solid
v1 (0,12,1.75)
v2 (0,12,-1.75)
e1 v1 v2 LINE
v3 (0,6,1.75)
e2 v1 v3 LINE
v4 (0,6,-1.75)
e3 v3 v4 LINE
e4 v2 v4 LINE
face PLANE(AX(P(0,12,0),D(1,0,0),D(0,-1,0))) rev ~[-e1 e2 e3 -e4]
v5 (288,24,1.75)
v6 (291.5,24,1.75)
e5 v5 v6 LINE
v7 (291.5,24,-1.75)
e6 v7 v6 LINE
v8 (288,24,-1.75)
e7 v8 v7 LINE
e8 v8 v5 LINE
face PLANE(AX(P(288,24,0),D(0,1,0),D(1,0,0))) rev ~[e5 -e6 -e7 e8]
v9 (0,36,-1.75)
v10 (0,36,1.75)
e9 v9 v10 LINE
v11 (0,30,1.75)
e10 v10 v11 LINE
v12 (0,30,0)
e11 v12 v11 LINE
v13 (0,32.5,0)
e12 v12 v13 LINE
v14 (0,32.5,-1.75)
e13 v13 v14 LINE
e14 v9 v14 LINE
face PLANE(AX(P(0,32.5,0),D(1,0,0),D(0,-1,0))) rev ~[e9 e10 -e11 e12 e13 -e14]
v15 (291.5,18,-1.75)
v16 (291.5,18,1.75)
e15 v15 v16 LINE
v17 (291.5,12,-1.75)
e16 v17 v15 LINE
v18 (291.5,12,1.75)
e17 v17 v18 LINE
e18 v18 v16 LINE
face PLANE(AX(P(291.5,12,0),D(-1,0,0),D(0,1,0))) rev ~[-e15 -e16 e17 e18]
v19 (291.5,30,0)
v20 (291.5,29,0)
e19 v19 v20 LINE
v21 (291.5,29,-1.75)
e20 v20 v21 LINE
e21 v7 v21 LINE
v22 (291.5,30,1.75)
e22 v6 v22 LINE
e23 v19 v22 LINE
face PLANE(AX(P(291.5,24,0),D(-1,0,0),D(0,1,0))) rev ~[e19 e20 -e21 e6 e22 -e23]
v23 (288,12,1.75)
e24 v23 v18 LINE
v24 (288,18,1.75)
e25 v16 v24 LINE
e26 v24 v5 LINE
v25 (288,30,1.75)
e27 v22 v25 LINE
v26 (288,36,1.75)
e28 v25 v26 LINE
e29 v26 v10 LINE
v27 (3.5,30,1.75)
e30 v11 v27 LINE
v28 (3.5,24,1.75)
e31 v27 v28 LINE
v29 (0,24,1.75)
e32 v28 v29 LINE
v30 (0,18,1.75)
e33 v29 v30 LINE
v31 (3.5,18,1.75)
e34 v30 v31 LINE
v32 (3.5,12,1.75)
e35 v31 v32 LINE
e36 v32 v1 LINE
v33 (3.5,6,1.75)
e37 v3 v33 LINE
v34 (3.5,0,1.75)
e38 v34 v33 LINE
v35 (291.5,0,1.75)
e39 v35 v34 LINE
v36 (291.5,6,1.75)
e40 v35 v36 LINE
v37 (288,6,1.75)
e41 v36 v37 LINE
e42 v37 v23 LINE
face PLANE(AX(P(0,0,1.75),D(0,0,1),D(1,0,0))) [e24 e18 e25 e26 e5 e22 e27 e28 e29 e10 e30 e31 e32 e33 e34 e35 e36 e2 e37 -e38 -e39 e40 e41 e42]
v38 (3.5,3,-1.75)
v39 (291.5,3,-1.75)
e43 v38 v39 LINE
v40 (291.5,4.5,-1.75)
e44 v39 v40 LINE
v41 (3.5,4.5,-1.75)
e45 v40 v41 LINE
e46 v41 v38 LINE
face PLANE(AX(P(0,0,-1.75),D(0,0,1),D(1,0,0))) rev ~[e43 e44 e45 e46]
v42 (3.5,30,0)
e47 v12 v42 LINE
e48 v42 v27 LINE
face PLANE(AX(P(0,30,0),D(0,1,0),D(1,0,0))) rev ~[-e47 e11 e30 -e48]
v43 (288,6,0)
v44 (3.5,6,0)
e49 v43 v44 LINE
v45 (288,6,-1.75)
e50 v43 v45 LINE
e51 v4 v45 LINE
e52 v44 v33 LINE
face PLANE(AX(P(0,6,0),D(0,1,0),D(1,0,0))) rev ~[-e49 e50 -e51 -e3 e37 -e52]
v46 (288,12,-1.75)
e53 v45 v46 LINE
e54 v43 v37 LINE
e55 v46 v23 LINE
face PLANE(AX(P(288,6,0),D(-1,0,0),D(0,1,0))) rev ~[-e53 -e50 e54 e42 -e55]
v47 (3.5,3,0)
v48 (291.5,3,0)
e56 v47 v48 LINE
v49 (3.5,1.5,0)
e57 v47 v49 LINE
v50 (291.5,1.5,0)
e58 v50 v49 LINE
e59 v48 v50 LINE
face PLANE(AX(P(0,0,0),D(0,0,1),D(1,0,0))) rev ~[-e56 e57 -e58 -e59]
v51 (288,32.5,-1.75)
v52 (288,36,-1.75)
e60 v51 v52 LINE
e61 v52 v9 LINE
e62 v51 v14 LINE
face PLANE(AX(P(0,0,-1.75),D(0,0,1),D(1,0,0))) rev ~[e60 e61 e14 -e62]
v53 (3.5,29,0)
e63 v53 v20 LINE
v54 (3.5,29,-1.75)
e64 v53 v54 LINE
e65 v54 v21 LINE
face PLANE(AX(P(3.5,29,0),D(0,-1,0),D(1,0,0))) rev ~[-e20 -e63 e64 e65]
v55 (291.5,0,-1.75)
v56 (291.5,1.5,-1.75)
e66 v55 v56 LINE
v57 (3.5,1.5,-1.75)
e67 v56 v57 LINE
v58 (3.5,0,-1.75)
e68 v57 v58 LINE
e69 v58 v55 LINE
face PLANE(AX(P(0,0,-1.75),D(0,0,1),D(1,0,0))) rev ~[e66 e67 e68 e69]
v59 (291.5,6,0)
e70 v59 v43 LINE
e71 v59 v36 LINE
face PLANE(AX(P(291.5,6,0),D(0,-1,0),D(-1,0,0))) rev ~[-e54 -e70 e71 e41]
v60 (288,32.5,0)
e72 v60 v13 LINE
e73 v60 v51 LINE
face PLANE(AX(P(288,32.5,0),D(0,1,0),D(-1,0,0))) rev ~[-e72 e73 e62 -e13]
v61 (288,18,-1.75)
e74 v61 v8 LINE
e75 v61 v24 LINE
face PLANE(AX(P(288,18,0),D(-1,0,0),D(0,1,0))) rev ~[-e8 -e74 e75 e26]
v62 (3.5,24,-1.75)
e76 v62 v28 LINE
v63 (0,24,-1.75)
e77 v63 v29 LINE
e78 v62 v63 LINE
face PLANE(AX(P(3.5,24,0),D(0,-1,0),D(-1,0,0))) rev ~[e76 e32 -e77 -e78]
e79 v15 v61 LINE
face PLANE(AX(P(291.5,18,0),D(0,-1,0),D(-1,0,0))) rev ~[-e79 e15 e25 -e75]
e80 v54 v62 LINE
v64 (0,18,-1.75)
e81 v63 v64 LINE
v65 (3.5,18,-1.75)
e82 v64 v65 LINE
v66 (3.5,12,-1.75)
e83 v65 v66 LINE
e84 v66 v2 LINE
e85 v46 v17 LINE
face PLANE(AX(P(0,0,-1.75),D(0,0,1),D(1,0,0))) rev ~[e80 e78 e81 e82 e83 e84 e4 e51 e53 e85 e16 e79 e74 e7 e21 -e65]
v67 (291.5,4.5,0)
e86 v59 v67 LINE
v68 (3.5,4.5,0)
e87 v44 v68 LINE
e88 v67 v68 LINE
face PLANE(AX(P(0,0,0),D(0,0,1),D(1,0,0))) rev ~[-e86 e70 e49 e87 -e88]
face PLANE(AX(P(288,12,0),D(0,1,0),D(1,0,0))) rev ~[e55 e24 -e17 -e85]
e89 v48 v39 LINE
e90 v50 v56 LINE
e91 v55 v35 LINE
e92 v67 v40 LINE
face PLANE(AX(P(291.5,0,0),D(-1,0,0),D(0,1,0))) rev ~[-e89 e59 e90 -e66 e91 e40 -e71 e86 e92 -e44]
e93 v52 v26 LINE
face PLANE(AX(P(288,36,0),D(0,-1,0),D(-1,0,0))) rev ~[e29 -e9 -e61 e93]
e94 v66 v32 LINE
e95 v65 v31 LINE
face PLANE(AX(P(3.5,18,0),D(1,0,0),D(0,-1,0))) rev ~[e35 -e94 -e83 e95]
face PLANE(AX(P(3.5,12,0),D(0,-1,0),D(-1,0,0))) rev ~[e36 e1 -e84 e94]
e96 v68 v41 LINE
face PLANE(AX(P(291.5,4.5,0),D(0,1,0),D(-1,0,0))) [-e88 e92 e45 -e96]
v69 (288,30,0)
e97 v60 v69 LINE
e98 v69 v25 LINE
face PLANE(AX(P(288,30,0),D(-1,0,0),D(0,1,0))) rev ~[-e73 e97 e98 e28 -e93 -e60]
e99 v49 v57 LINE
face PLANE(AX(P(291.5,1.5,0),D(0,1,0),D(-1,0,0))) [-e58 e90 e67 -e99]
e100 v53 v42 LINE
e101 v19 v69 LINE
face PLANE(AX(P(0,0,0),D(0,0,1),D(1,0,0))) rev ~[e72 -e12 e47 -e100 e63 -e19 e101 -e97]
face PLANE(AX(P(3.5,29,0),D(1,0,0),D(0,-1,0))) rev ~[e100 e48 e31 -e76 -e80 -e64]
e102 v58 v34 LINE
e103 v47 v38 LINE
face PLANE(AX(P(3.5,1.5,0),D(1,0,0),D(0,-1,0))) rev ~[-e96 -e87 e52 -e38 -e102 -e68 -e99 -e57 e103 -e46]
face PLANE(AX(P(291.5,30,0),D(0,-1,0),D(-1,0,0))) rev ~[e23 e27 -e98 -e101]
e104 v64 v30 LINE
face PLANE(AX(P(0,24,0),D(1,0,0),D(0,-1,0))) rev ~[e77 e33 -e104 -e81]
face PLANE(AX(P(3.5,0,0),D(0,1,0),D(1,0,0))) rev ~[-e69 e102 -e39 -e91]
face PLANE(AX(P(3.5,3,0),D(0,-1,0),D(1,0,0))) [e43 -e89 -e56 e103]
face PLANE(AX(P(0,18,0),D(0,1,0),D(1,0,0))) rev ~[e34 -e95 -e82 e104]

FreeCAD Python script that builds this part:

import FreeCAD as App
import Part
import Sketcher

V = App.Vector
Q = App.Units.Quantity

doc = App.newDocument("Part")
params = doc.addObject("Spreadsheet::Sheet", "Params")
for row, (alias, value) in enumerate([
    ("sketch1_width", "288 mm"),
    ("sketch1_height", "6 mm"),
    ("sketch1_width2", "3.5 mm"),
    ("pad1_length", "1.75 mm"),
    ("sketch2_width", "288 mm"),
    ("sketch2_height", "6 mm"),
    ("sketch2_width2", "3.5 mm"),
    ("sketch2_height2", "1.5 mm"),
    ("pad2_length", "1.75 mm"),
], start=1):
    params.set(f"A{row}", alias)
    params.set(f"B{row}", "=" + value)
    params.setAlias(f"B{row}", alias)

body = doc.addObject("PartDesign::Body", "Body")

sketch1 = doc.addObject("Sketcher::SketchObject", "Sketch")
body.addObject(sketch1)
sketch1.AttachmentSupport = (doc.XY_Plane, [""])
sketch1.MapMode = "FlatFace"
sketch1.addGeometry([
    Part.LineSegment(V(3.5, 0, 0), V(291.5, 0, 0)),
    Part.LineSegment(V(291.5, 0, 0), V(291.5, 6, 0)),
    Part.LineSegment(V(291.5, 6, 0), V(288, 6, 0)),
    Part.LineSegment(V(288, 6, 0), V(288, 12, 0)),
    Part.LineSegment(V(288, 12, 0), V(291.5, 12, 0)),
    Part.LineSegment(V(291.5, 12, 0), V(291.5, 18, 0)),
    Part.LineSegment(V(291.5, 18, 0), V(288, 18, 0)),
    Part.LineSegment(V(288, 18, 0), V(288, 24, 0)),
    Part.LineSegment(V(288, 24, 0), V(291.5, 24, 0)),
    Part.LineSegment(V(291.5, 24, 0), V(291.5, 30, 0)),
    Part.LineSegment(V(291.5, 30, 0), V(288, 30, 0)),
    Part.LineSegment(V(288, 30, 0), V(288, 36, 0)),
    Part.LineSegment(V(288, 36, 0), V(0, 36, 0)),
    Part.LineSegment(V(0, 36, 0), V(0, 30, 0)),
    Part.LineSegment(V(0, 30, 0), V(3.5, 30, 0)),
    Part.LineSegment(V(3.5, 30, 0), V(3.5, 24, 0)),
    Part.LineSegment(V(3.5, 24, 0), V(0, 24, 0)),
    Part.LineSegment(V(0, 24, 0), V(0, 18, 0)),
    Part.LineSegment(V(0, 18, 0), V(3.5, 18, 0)),
    Part.LineSegment(V(3.5, 18, 0), V(3.5, 12, 0)),
    Part.LineSegment(V(3.5, 12, 0), V(0, 12, 0)),
    Part.LineSegment(V(0, 12, 0), V(0, 6, 0)),
    Part.LineSegment(V(0, 6, 0), V(3.5, 6, 0)),
    Part.LineSegment(V(3.5, 6, 0), V(3.5, 0, 0)),
], False)
sketch1.addConstraint([
    Sketcher.Constraint("Coincident", 0, 2, 1, 1),
    Sketcher.Constraint("Coincident", 1, 2, 2, 1),
    Sketcher.Constraint("Coincident", 2, 2, 3, 1),
    Sketcher.Constraint("Coincident", 3, 2, 4, 1),
    Sketcher.Constraint("Coincident", 4, 2, 5, 1),
    Sketcher.Constraint("Coincident", 5, 2, 6, 1),
    Sketcher.Constraint("Coincident", 6, 2, 7, 1),
    Sketcher.Constraint("Coincident", 7, 2, 8, 1),
    Sketcher.Constraint("Coincident", 8, 2, 9, 1),
    Sketcher.Constraint("Coincident", 9, 2, 10, 1),
    Sketcher.Constraint("Coincident", 10, 2, 11, 1),
    Sketcher.Constraint("Coincident", 11, 2, 12, 1),
    Sketcher.Constraint("Coincident", 12, 2, 13, 1),
    Sketcher.Constraint("Coincident", 13, 2, 14, 1),
    Sketcher.Constraint("Coincident", 14, 2, 15, 1),
    Sketcher.Constraint("Coincident", 15, 2, 16, 1),
    Sketcher.Constraint("Coincident", 16, 2, 17, 1),
    Sketcher.Constraint("Coincident", 17, 2, 18, 1),
    Sketcher.Constraint("Coincident", 18, 2, 19, 1),
    Sketcher.Constraint("Coincident", 19, 2, 20, 1),
    Sketcher.Constraint("Coincident", 20, 2, 21, 1),
    Sketcher.Constraint("Coincident", 21, 2, 22, 1),
    Sketcher.Constraint("Coincident", 22, 2, 23, 1),
    Sketcher.Constraint("Coincident", 23, 2, 0, 1),
    Sketcher.Constraint("Horizontal", 0),
    Sketcher.Constraint("Vertical", 1),
    Sketcher.Constraint("Horizontal", 2),
    Sketcher.Constraint("Vertical", 3),
    Sketcher.Constraint("Horizontal", 4),
    Sketcher.Constraint("Vertical", 5),
    Sketcher.Constraint("Horizontal", 6),
    Sketcher.Constraint("Vertical", 7),
    Sketcher.Constraint("Horizontal", 8),
    Sketcher.Constraint("Vertical", 9),
    Sketcher.Constraint("Horizontal", 10),
    Sketcher.Constraint("Vertical", 11),
    Sketcher.Constraint("Horizontal", 12),
    Sketcher.Constraint("Vertical", 13),
    Sketcher.Constraint("Horizontal", 14),
    Sketcher.Constraint("Vertical", 15),
    Sketcher.Constraint("Horizontal", 16),
    Sketcher.Constraint("Vertical", 17),
    Sketcher.Constraint("Horizontal", 18),
    Sketcher.Constraint("Vertical", 19),
    Sketcher.Constraint("Horizontal", 20),
    Sketcher.Constraint("Vertical", 21),
    Sketcher.Constraint("Horizontal", 22),
    Sketcher.Constraint("Vertical", 23),
    Sketcher.Constraint("PointOnObject", 0, 2, -1),
    Sketcher.Constraint("PointOnObject", 12, 2, -2),
    Sketcher.Constraint("PointOnObject", 16, 2, -2),
    Sketcher.Constraint("PointOnObject", 20, 2, -2),
    Sketcher.Constraint("Horizontal", 10, 2, 13, 2),
    Sketcher.Constraint("Horizontal", 8, 2, 15, 2),
    Sketcher.Constraint("Horizontal", 6, 2, 17, 2),
    Sketcher.Constraint("Horizontal", 4, 2, 19, 2),
    Sketcher.Constraint("Horizontal", 2, 2, 21, 2),
    Sketcher.Constraint("Vertical", 1, 2, 4, 2),
    Sketcher.Constraint("Vertical", 3, 2, 6, 2),
    Sketcher.Constraint("Vertical", 5, 2, 8, 2),
    Sketcher.Constraint("Vertical", 7, 2, 10, 2),
    Sketcher.Constraint("Vertical", 15, 2, 18, 2),
    Sketcher.Constraint("Vertical", 19, 2, 22, 2),
    Sketcher.Constraint("Equal", 0, 12),
    Sketcher.Constraint("Equal", 1, 3),
    Sketcher.Constraint("Equal", 3, 5),
    Sketcher.Constraint("Equal", 5, 7),
    Sketcher.Constraint("Equal", 7, 9),
    Sketcher.Constraint("Equal", 9, 11),
    Sketcher.Constraint("DistanceX", 0, 1, 0, 2, Q("288 mm")),
    Sketcher.Constraint("DistanceY", 1, 1, 1, 2, Q("6 mm")),
    Sketcher.Constraint("DistanceX", 2, 2, 2, 1, Q("3.5 mm")),
])
sketch1.setExpression("Constraints[69]", "Params.sketch1_width")
sketch1.setExpression("Constraints[70]", "Params.sketch1_height")
sketch1.setExpression("Constraints[71]", "Params.sketch1_width2")
pad1 = doc.addObject("PartDesign::Pad", "Pad")
body.addObject(pad1)
pad1.Profile = sketch1
pad1.setExpression("Length", "Params.pad1_length")

sketch2 = doc.addObject("Sketcher::SketchObject", "Sketch001")
body.addObject(sketch2)
sketch2.AttachmentSupport = (doc.XY_Plane, [""])
sketch2.MapMode = "FlatFace"
sketch2.addGeometry([
    Part.LineSegment(V(3.5, 1.5, 0), V(3.5, 0, 0)),
    Part.LineSegment(V(3.5, 0, 0), V(291.5, 0, 0)),
    Part.LineSegment(V(291.5, 0, 0), V(291.5, 1.5, 0)),
    Part.LineSegment(V(291.5, 1.5, 0), V(3.5, 1.5, 0)),
    Part.LineSegment(V(3.5, 4.5, 0), V(3.5, 3, 0)),
    Part.LineSegment(V(3.5, 3, 0), V(291.5, 3, 0)),
    Part.LineSegment(V(291.5, 3, 0), V(291.5, 4.5, 0)),
    Part.LineSegment(V(291.5, 4.5, 0), V(3.5, 4.5, 0)),
    Part.LineSegment(V(0, 6, 0), V(288, 6, 0)),
    Part.LineSegment(V(288, 6, 0), V(288, 12, 0)),
    Part.LineSegment(V(288, 12, 0), V(291.5, 12, 0)),
    Part.LineSegment(V(291.5, 12, 0), V(291.5, 18, 0)),
    Part.LineSegment(V(291.5, 18, 0), V(288, 18, 0)),
    Part.LineSegment(V(288, 18, 0), V(288, 24, 0)),
    Part.LineSegment(V(288, 24, 0), V(291.5, 24, 0)),
    Part.LineSegment(V(291.5, 24, 0), V(291.5, 29, 0)),
    Part.LineSegment(V(291.5, 29, 0), V(3.5, 29, 0)),
    Part.LineSegment(V(3.5, 29, 0), V(3.5, 24, 0)),
    Part.LineSegment(V(3.5, 24, 0), V(0, 24, 0)),
    Part.LineSegment(V(0, 24, 0), V(0, 18, 0)),
    Part.LineSegment(V(0, 18, 0), V(3.5, 18, 0)),
    Part.LineSegment(V(3.5, 18, 0), V(3.5, 12, 0)),
    Part.LineSegment(V(3.5, 12, 0), V(0, 12, 0)),
    Part.LineSegment(V(0, 12, 0), V(0, 6, 0)),
    Part.LineSegment(V(0, 36, 0), V(0, 32.5, 0)),
    Part.LineSegment(V(0, 32.5, 0), V(288, 32.5, 0)),
    Part.LineSegment(V(288, 32.5, 0), V(288, 36, 0)),
    Part.LineSegment(V(288, 36, 0), V(0, 36, 0)),
], False)
sketch2.addConstraint([
    Sketcher.Constraint("Coincident", 0, 2, 1, 1),
    Sketcher.Constraint("Coincident", 1, 2, 2, 1),
    Sketcher.Constraint("Coincident", 2, 2, 3, 1),
    Sketcher.Constraint("Coincident", 3, 2, 0, 1),
    Sketcher.Constraint("Coincident", 4, 2, 5, 1),
    Sketcher.Constraint("Coincident", 5, 2, 6, 1),
    Sketcher.Constraint("Coincident", 6, 2, 7, 1),
    Sketcher.Constraint("Coincident", 7, 2, 4, 1),
    Sketcher.Constraint("Coincident", 8, 2, 9, 1),
    Sketcher.Constraint("Coincident", 9, 2, 10, 1),
    Sketcher.Constraint("Coincident", 10, 2, 11, 1),
    Sketcher.Constraint("Coincident", 11, 2, 12, 1),
    Sketcher.Constraint("Coincident", 12, 2, 13, 1),
    Sketcher.Constraint("Coincident", 13, 2, 14, 1),
    Sketcher.Constraint("Coincident", 14, 2, 15, 1),
    Sketcher.Constraint("Coincident", 15, 2, 16, 1),
    Sketcher.Constraint("Coincident", 16, 2, 17, 1),
    Sketcher.Constraint("Coincident", 17, 2, 18, 1),
    Sketcher.Constraint("Coincident", 18, 2, 19, 1),
    Sketcher.Constraint("Coincident", 19, 2, 20, 1),
    Sketcher.Constraint("Coincident", 20, 2, 21, 1),
    Sketcher.Constraint("Coincident", 21, 2, 22, 1),
    Sketcher.Constraint("Coincident", 22, 2, 23, 1),
    Sketcher.Constraint("Coincident", 23, 2, 8, 1),
    Sketcher.Constraint("Coincident", 24, 2, 25, 1),
    Sketcher.Constraint("Coincident", 25, 2, 26, 1),
    Sketcher.Constraint("Coincident", 26, 2, 27, 1),
    Sketcher.Constraint("Coincident", 27, 2, 24, 1),
    Sketcher.Constraint("Vertical", 0),
    Sketcher.Constraint("Horizontal", 1),
    Sketcher.Constraint("Vertical", 2),
    Sketcher.Constraint("Horizontal", 3),
    Sketcher.Constraint("Vertical", 4),
    Sketcher.Constraint("Horizontal", 5),
    Sketcher.Constraint("Vertical", 6),
    Sketcher.Constraint("Horizontal", 7),
    Sketcher.Constraint("Horizontal", 8),
    Sketcher.Constraint("Vertical", 9),
    Sketcher.Constraint("Horizontal", 10),
    Sketcher.Constraint("Vertical", 11),
    Sketcher.Constraint("Horizontal", 12),
    Sketcher.Constraint("Vertical", 13),
    Sketcher.Constraint("Horizontal", 14),
    Sketcher.Constraint("Vertical", 15),
    Sketcher.Constraint("Horizontal", 16),
    Sketcher.Constraint("Vertical", 17),
    Sketcher.Constraint("Horizontal", 18),
    Sketcher.Constraint("Vertical", 19),
    Sketcher.Constraint("Horizontal", 20),
    Sketcher.Constraint("Vertical", 21),
    Sketcher.Constraint("Horizontal", 22),
    Sketcher.Constraint("Vertical", 23),
    Sketcher.Constraint("Vertical", 24),
    Sketcher.Constraint("Horizontal", 25),
    Sketcher.Constraint("Vertical", 26),
    Sketcher.Constraint("Horizontal", 27),
    Sketcher.Constraint("PointOnObject", 0, 2, -1),
    Sketcher.Constraint("PointOnObject", 18, 2, -2),
    Sketcher.Constraint("PointOnObject", 22, 2, -2),
    Sketcher.Constraint("PointOnObject", 24, 2, -2),
    Sketcher.Constraint("Horizontal", 14, 2, 17, 2),
    Sketcher.Constraint("Horizontal", 12, 2, 19, 2),
    Sketcher.Constraint("Horizontal", 10, 2, 21, 2),
    Sketcher.Constraint("Vertical", 3, 2, 4, 2),
    Sketcher.Constraint("Vertical", 2, 2, 5, 2),
    Sketcher.Constraint("Vertical", 6, 2, 10, 2),
    Sketcher.Constraint("Vertical", 9, 2, 12, 2),
    Sketcher.Constraint("Vertical", 11, 2, 14, 2),
    Sketcher.Constraint("Vertical", 7, 2, 16, 2),
    Sketcher.Constraint("Vertical", 17, 2, 20, 2),
    Sketcher.Constraint("Vertical", 13, 2, 25, 2),
    Sketcher.Constraint("Equal", 7, 8),
    Sketcher.Constraint("Equal", 2, 4),
    Sketcher.Constraint("Equal", 9, 11),
    Sketcher.Constraint("Equal", 11, 13),
    Sketcher.Constraint("Equal", 22, 24),
    Sketcher.Constraint("DistanceX", 1, 1, 1, 2, Q("288 mm")),
    Sketcher.Constraint("DistanceY", 9, 1, 9, 2, Q("6 mm")),
    Sketcher.Constraint("DistanceX", 10, 1, 10, 2, Q("3.5 mm")),
    Sketcher.Constraint("DistanceY", 0, 2, 0, 1, Q("1.5 mm")),
    Sketcher.Constraint("DistanceY", -1, 1, 8, 2, Q("6 mm")),
    Sketcher.Constraint("DistanceY", -1, 1, 26, 2, Q("36 mm")),
    Sketcher.Constraint("DistanceY", 3, 2, 4, 2, Q("1.5 mm")),
    Sketcher.Constraint("DistanceY", 16, 2, 24, 2, Q("3.5 mm")),
])
sketch2.setExpression("Constraints[76]", "Params.sketch2_width")
sketch2.setExpression("Constraints[77]", "Params.sketch2_height")
sketch2.setExpression("Constraints[78]", "Params.sketch2_width2")
sketch2.setExpression("Constraints[79]", "Params.sketch2_height2")
pad2 = doc.addObject("PartDesign::Pad", "Pad001")
body.addObject(pad2)
pad2.Profile = sketch2
pad2.setExpression("Length", "Params.pad2_length")
pad2.Reversed = True

doc.recompute()
